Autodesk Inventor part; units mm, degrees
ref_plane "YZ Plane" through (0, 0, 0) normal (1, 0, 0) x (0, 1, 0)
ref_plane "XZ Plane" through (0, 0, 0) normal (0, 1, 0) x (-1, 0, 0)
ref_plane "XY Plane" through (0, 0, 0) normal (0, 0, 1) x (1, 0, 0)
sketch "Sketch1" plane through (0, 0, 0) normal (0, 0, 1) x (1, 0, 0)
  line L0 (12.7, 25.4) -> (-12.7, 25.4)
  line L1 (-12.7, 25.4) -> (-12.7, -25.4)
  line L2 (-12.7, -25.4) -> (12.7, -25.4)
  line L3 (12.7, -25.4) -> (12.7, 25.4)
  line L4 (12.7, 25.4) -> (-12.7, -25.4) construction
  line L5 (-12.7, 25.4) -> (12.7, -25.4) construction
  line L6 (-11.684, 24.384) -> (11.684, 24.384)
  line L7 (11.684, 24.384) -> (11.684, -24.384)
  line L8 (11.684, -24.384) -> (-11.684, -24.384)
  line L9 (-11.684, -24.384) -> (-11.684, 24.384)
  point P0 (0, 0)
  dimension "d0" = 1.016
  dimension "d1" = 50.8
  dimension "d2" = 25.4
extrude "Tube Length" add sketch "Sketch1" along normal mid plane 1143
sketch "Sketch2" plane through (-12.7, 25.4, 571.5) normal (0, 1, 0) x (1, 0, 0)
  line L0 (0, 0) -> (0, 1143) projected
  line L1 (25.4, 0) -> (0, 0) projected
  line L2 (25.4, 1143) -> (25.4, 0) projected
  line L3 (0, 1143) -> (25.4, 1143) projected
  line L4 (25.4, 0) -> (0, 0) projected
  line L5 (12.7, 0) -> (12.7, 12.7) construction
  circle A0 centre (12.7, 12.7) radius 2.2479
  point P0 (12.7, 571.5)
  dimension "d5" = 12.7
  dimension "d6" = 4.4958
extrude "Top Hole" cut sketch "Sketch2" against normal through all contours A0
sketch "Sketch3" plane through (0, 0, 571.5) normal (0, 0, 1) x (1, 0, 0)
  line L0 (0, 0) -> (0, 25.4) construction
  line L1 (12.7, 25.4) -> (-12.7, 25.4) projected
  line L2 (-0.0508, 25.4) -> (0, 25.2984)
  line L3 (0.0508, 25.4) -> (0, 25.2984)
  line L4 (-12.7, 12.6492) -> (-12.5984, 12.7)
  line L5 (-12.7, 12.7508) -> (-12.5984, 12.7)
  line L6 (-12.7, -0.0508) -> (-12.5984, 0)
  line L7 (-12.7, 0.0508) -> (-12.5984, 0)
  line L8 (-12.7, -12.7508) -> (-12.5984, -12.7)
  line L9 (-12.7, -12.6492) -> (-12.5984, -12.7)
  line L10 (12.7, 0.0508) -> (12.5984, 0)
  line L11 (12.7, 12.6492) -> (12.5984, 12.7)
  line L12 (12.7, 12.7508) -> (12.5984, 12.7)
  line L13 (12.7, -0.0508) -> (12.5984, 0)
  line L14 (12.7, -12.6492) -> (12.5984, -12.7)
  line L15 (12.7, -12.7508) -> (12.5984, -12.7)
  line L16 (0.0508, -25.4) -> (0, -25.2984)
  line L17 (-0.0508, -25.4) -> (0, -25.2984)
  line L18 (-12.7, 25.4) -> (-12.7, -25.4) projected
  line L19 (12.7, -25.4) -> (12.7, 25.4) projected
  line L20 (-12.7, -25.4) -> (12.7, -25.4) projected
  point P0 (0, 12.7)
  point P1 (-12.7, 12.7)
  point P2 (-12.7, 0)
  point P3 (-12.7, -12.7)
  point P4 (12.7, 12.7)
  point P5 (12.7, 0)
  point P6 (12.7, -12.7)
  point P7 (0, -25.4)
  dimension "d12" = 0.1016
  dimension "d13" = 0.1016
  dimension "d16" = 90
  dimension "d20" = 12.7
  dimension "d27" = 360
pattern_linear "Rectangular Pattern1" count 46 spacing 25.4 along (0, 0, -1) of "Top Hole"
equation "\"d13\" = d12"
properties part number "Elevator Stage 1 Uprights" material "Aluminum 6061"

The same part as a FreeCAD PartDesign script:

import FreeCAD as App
import Part
import Sketcher
from FreeCAD import Vector
Q = App.Units.Quantity

doc = App.newDocument("Part")
body = doc.addObject("PartDesign::Body", "Body")

# Sketch on XY plane
sketch1 = doc.addObject("Sketcher::SketchObject", "Sketch")
body.addObject(sketch1)
sketch1.AttachmentSupport = (doc.XY_Plane, [""])
sketch1.MapMode = "FlatFace"
sketch1.addGeometry(Part.LineSegment(Vector(13, -25, 0), Vector(13, 25, 0)), False)
sketch1.addGeometry(Part.LineSegment(Vector(13, 25, 0), Vector(-13, 25, 0)), False)
sketch1.addGeometry(Part.LineSegment(Vector(-13, 25, 0), Vector(-13, -25, 0)), False)
sketch1.addGeometry(Part.LineSegment(Vector(-13, -25, 0), Vector(13, -25, 0)), False)
sketch1.addGeometry(Part.LineSegment(Vector(-12, -24, 0), Vector(-12, 24, 0)), False)
sketch1.addGeometry(Part.LineSegment(Vector(-12, 24, 0), Vector(12, 24, 0)), False)
sketch1.addGeometry(Part.LineSegment(Vector(12, 24, 0), Vector(12, -24, 0)), False)
sketch1.addGeometry(Part.LineSegment(Vector(12, -24, 0), Vector(-12, -24, 0)), False)
sketch1.addConstraint(Sketcher.Constraint("Coincident", 0, 2, 1, 1))
sketch1.addConstraint(Sketcher.Constraint("Coincident", 1, 2, 2, 1))
sketch1.addConstraint(Sketcher.Constraint("Coincident", 2, 2, 3, 1))
sketch1.addConstraint(Sketcher.Constraint("Coincident", 3, 2, 0, 1))
sketch1.addConstraint(Sketcher.Constraint("Coincident", 4, 2, 5, 1))
sketch1.addConstraint(Sketcher.Constraint("Coincident", 5, 2, 6, 1))
sketch1.addConstraint(Sketcher.Constraint("Coincident", 6, 2, 7, 1))
sketch1.addConstraint(Sketcher.Constraint("Coincident", 7, 2, 4, 1))
sketch1.addConstraint(Sketcher.Constraint("Vertical", 0))
sketch1.addConstraint(Sketcher.Constraint("Horizontal", 1))
sketch1.addConstraint(Sketcher.Constraint("Vertical", 2))
sketch1.addConstraint(Sketcher.Constraint("Horizontal", 3))
sketch1.addConstraint(Sketcher.Constraint("Vertical", 4))
sketch1.addConstraint(Sketcher.Constraint("Horizontal", 5))
sketch1.addConstraint(Sketcher.Constraint("Vertical", 6))
sketch1.addConstraint(Sketcher.Constraint("Horizontal", 7))
sketch1.addConstraint(Sketcher.Constraint("Symmetric", 0, 2, 2, 2, -1, 1))
sketch1.addConstraint(Sketcher.Constraint("Symmetric", 4, 2, 6, 2, -1, 1))
sketch1.addConstraint(Sketcher.Constraint("DistanceX", 1, 2, 1, 1, Q("1 in")))
sketch1.addConstraint(Sketcher.Constraint("DistanceY", 0, 1, 0, 2, Q("2 in")))
sketch1.addConstraint(Sketcher.Constraint("DistanceX", 1, 2, 4, 2, Q("0.04 in")))
sketch1.addConstraint(Sketcher.Constraint("DistanceY", 4, 2, 1, 2, Q("0.04 in")))
pad1 = doc.addObject("PartDesign::Pad", "Pad")
body.addObject(pad1)
pad1.Profile = sketch1
pad1.Length = Q("45 in")
pad1.Midplane = True

# Sketch on XZ plane
sketch2 = doc.addObject("Sketcher::SketchObject", "Sketch001")
body.addObject(sketch2)
sketch2.AttachmentSupport = (doc.XZ_Plane, [""])
sketch2.MapMode = "FlatFace"
sketch2.AttachmentOffset = App.Placement(Vector(0, 0, -1 * 25.4), App.Rotation())
sketch2.addGeometry(Part.Circle(Vector(0, 558.8, 0), Vector(0, 0, 1), 2.2), False)
sketch2.addConstraint(Sketcher.Constraint("PointOnObject", 0, 3, -2))
sketch2.addConstraint(Sketcher.Constraint("Diameter", 0, Q("0.177 in")))
sketch2.addConstraint(Sketcher.Constraint("DistanceY", -1, 1, 0, 3, Q("22 in")))
pocket1 = doc.addObject("PartDesign::Pocket", "Pocket")
body.addObject(pocket1)
pocket1.Profile = sketch2
pocket1.Type = "ThroughAll"
pocket1.Reversed = True
doc.recompute()

linearpattern = doc.addObject("PartDesign::LinearPattern", "LinearPattern")
body.addObject(linearpattern)
linearpattern.Originals = [pocket1]
linearpattern.Direction = (doc.Z_Axis, [""])
linearpattern.Mode = "offset"
linearpattern.Offset = Q("1 in")
linearpattern.Occurrences = 46
linearpattern.Reversed = True
body.Tip = linearpattern

doc.recompute()
